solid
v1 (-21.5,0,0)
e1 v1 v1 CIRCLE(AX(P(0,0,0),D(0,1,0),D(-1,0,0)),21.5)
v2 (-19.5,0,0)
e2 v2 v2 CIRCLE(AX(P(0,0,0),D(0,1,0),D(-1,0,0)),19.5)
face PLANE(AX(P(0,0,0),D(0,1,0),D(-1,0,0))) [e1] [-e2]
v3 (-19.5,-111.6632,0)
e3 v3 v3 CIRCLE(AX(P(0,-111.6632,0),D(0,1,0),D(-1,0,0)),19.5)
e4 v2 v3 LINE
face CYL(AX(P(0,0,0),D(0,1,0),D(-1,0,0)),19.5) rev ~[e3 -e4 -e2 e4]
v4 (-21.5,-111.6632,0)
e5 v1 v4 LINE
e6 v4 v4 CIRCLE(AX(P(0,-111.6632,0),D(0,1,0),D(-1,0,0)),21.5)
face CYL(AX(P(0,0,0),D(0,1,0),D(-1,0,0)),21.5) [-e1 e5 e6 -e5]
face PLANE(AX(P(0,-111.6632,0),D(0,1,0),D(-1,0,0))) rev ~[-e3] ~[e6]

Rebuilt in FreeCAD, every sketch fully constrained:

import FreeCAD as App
import Part
import Sketcher

doc = App.newDocument("Part")
body = doc.addObject("PartDesign::Body", "Body")

# Sketch on XZ plane
sketch1 = body.newObject("Sketcher::SketchObject", "Sketch")
sketch1.AttachmentSupport = (doc.getObject("XZ_Plane"), [""])
sketch1.MapMode = "FlatFace"
sketch1.addGeometry([
    Part.Circle(App.Vector(0, 0, 0), App.Vector(0, 0, 1), 21.5),
    Part.Circle(App.Vector(0, 0, 0), App.Vector(0, 0, 1), 19.5),
], False)
sketch1.addConstraint([
    Sketcher.Constraint("Coincident", 0, 3, -1, 1),
    Sketcher.Constraint("Coincident", 1, 3, -1, 1),
    Sketcher.Constraint("Diameter", 1, 39.0),
    Sketcher.Constraint("Diameter", 0, 43.0),
])
pad1 = body.newObject("PartDesign::Pad", "Pad")
pad1.Profile = sketch1
pad1.Length = 111.6632

doc.recompute()
